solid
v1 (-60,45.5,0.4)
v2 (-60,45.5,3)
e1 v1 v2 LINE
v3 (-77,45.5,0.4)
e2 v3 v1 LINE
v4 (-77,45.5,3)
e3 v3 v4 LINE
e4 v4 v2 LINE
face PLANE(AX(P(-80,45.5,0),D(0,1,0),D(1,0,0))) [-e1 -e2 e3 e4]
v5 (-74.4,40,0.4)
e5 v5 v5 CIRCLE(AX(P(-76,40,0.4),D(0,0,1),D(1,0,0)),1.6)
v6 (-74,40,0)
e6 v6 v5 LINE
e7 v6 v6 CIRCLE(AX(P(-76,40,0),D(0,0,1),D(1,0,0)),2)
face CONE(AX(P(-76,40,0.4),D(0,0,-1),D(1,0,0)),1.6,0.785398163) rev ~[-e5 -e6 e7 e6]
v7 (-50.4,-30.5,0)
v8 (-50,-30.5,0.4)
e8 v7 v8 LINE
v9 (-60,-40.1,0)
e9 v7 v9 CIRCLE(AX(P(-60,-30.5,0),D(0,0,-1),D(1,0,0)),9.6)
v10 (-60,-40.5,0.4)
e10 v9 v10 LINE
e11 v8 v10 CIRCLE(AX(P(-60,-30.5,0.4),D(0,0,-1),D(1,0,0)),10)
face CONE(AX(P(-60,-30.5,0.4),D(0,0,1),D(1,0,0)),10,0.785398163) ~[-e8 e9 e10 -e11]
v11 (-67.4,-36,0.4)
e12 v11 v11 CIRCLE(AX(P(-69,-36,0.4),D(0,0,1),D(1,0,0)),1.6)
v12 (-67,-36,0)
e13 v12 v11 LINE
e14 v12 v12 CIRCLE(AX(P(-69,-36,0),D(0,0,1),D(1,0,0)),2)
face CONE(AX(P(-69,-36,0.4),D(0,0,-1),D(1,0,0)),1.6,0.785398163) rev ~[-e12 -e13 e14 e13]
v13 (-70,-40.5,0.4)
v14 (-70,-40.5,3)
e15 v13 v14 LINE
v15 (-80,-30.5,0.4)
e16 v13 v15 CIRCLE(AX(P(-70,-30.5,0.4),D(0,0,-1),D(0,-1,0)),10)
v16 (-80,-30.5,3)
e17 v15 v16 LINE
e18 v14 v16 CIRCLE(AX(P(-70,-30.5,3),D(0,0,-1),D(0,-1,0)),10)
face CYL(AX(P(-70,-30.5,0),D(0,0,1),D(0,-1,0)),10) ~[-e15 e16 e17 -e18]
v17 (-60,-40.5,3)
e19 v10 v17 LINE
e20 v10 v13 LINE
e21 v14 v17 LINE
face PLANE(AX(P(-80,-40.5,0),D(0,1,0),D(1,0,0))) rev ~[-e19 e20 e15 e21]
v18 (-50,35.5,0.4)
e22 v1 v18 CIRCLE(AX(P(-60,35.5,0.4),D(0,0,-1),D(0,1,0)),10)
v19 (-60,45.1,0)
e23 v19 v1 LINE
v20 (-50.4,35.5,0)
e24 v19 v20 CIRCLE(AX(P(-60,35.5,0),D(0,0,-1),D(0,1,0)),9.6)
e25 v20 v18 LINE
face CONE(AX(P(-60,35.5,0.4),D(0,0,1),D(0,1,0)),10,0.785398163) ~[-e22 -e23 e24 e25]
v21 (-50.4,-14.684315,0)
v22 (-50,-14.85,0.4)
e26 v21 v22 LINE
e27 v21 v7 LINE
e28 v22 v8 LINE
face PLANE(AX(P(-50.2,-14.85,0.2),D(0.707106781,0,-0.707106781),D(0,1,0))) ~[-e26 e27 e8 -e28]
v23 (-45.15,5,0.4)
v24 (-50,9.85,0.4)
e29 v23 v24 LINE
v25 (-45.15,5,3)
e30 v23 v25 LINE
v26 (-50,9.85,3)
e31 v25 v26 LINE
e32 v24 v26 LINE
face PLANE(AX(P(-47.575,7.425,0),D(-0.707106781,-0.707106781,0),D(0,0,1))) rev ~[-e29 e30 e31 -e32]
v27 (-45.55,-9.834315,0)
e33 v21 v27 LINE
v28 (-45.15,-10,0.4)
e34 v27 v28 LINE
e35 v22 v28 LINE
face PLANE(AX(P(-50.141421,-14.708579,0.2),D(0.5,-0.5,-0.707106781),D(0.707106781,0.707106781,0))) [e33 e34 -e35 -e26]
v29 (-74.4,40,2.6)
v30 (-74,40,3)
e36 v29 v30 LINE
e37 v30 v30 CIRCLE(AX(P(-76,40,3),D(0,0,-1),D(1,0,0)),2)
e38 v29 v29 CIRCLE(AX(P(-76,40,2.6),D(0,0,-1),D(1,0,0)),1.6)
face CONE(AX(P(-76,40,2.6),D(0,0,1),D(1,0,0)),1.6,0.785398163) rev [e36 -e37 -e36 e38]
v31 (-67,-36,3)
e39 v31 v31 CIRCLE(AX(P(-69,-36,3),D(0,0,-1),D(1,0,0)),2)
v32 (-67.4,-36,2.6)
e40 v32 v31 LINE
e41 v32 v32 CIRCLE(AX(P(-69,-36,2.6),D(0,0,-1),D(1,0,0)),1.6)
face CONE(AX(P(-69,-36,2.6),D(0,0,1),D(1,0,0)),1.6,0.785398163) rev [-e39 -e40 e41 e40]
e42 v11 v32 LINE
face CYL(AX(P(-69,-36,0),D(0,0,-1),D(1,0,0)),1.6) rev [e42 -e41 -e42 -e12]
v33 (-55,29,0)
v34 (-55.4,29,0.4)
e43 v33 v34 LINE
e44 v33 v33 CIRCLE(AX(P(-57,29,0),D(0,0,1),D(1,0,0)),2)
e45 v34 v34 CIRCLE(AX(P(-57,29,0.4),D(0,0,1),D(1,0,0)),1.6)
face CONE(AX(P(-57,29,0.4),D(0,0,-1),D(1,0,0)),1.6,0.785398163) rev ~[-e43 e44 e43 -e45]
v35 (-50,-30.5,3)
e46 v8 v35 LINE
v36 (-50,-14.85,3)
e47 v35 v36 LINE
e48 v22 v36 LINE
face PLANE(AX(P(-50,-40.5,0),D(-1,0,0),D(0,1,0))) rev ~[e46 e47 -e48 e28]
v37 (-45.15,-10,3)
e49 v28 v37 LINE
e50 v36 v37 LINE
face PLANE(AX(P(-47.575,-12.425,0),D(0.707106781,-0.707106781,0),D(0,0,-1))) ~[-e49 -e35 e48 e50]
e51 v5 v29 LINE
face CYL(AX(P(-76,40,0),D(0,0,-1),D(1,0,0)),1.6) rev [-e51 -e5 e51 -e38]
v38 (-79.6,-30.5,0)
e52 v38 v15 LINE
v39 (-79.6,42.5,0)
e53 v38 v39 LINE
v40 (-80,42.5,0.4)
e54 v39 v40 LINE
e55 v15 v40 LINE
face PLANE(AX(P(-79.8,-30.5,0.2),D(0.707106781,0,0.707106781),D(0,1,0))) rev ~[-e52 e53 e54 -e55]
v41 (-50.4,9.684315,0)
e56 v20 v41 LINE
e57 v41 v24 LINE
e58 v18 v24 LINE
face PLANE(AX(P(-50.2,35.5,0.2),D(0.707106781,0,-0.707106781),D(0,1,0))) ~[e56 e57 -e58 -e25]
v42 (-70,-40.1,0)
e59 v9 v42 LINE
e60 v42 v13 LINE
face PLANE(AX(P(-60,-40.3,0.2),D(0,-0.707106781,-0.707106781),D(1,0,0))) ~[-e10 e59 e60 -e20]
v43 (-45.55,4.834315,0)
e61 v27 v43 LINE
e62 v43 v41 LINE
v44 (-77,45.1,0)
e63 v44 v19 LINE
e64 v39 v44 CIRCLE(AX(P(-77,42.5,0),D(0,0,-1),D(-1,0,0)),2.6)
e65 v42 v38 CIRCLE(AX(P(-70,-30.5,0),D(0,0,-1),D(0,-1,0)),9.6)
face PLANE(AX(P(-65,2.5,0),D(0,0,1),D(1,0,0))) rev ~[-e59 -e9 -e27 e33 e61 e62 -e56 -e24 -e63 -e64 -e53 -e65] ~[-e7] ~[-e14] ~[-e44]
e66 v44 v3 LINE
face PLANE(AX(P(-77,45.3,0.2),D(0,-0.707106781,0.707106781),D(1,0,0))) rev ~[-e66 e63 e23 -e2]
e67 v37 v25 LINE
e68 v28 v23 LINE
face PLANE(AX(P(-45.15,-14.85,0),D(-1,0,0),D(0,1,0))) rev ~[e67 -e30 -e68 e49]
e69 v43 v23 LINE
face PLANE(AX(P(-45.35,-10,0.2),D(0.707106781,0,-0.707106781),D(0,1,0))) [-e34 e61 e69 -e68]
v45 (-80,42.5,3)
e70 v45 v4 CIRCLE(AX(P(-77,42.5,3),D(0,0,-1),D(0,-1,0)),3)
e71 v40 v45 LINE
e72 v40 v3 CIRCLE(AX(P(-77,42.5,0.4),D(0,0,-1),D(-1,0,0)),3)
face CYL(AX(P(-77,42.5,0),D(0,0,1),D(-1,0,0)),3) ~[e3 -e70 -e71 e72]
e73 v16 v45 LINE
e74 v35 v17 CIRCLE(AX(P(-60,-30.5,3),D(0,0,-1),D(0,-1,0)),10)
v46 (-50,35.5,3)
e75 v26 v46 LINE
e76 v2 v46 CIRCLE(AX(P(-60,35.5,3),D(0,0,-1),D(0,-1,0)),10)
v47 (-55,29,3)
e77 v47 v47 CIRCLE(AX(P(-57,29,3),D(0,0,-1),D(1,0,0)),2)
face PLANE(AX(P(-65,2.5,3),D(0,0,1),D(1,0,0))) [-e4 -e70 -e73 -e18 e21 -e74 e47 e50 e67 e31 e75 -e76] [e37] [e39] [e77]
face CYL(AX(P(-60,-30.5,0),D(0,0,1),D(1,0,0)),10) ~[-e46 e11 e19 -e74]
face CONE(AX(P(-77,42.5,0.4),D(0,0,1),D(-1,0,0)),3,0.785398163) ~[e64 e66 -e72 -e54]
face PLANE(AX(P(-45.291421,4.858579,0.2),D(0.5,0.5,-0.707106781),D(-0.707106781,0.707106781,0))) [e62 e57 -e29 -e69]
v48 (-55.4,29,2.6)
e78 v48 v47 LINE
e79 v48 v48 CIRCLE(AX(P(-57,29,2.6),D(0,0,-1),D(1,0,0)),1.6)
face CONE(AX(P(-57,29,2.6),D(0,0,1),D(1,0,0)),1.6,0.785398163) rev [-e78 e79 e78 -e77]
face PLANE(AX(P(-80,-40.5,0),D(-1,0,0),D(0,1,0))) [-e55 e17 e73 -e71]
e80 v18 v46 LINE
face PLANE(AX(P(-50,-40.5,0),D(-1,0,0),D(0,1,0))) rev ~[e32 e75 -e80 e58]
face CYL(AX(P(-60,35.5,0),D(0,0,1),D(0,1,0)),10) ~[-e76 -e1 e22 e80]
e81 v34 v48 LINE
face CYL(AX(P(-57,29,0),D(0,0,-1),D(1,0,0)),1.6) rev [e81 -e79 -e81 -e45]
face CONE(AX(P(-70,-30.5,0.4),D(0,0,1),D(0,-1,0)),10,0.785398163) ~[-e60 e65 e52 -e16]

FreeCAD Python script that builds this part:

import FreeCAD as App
import Part
import Sketcher
from FreeCAD import Vector


def edges_at(feature, points):
    """Names of the edges that pass closest to the given points."""
    edges = feature.Shape.Edges
    near = lambda p: min(range(len(edges)), key=lambda i: edges[i].distToShape(Part.Vertex(*p))[0])
    return sorted({f"Edge{near(p) + 1}" for p in points})

doc = App.newDocument("Part")
body = doc.addObject("PartDesign::Body", "Body")

# Sketch on XY plane
sketch1 = doc.addObject("Sketcher::SketchObject", "Sketch")
body.addObject(sketch1)
sketch1.AttachmentSupport = (doc.XY_Plane, [""])
sketch1.MapMode = "FlatFace"
sketch1.addGeometry([
    Part.LineSegment(Vector(-55, 10, 0), Vector(-55, -15, 0)),
    Part.LineSegment(Vector(-55, -15, 0), Vector(-45, -15, 0)),
    Part.LineSegment(Vector(-45, -15, 0), Vector(-45, 10, 0)),
    Part.LineSegment(Vector(-45, 10, 0), Vector(-55, 10, 0)),
], False)
sketch1.addConstraint([
    Sketcher.Constraint("Coincident", 0, 2, 1, 1),
    Sketcher.Constraint("Coincident", 1, 2, 2, 1),
    Sketcher.Constraint("Coincident", 2, 2, 3, 1),
    Sketcher.Constraint("Coincident", 3, 2, 0, 1),
    Sketcher.Constraint("Vertical", 0),
    Sketcher.Constraint("Horizontal", 1),
    Sketcher.Constraint("Vertical", 2),
    Sketcher.Constraint("Horizontal", 3),
    Sketcher.Constraint("DistanceX", 1, 1, 1, 2, 10.0),
    Sketcher.Constraint("DistanceY", 0, 2, 0, 1, 24.7),
    Sketcher.Constraint("DistanceX", 0, 2, -1, 1, 55.15),
    Sketcher.Constraint("DistanceY", 0, 2, -1, 1, 14.85),
])
pad1 = doc.addObject("PartDesign::Pad", "Pad")
body.addObject(pad1)
pad1.Profile = sketch1
pad1.Length = 3
doc.recompute()

chamfer = doc.addObject("PartDesign::Chamfer", "Chamfer")
body.addObject(chamfer)
chamfer.Base = (pad1, edges_at(pad1, [(-45.15, -14.85, 1.5), (-45.15, 9.85, 1.5)]))
chamfer.Size = 4.85
body2 = doc.addObject("PartDesign::Body", "Body001")

# Sketch on XY plane
sketch2 = doc.addObject("Sketcher::SketchObject", "Sketch001")
body2.addObject(sketch2)
sketch2.AttachmentSupport = (doc.getObject("XY_Plane001"), [""])
sketch2.MapMode = "FlatFace"
sketch2.addGeometry(Part.Circle(Vector(-76, 40, 0), Vector(0, 0, 1), 1.6), False)
sketch2.addConstraint([
    Sketcher.Constraint("Diameter", 0, 3.2),
    Sketcher.Constraint("DistanceX", 0, 3, -1, 1, 76.0),
    Sketcher.Constraint("DistanceY", -1, 1, 0, 3, 40.0),
])
pad2 = doc.addObject("PartDesign::Pad", "Pad001")
body2.addObject(pad2)
pad2.Profile = sketch2
pad2.Length = 10
body3 = doc.addObject("PartDesign::Body", "Body002")

# Sketch on XY plane
sketch3 = doc.addObject("Sketcher::SketchObject", "Sketch002")
body3.addObject(sketch3)
sketch3.AttachmentSupport = (doc.getObject("XY_Plane002"), [""])
sketch3.MapMode = "FlatFace"
sketch3.addGeometry(Part.Circle(Vector(-57, 29, 0), Vector(0, 0, 1), 1.6), False)
sketch3.addConstraint([
    Sketcher.Constraint("Diameter", 0, 3.2),
    Sketcher.Constraint("DistanceX", 0, 3, -1, 1, 57.0),
    Sketcher.Constraint("DistanceY", -1, 1, 0, 3, 29.0),
])
pad3 = doc.addObject("PartDesign::Pad", "Pad002")
body3.addObject(pad3)
pad3.Profile = sketch3
pad3.Length = 10
body4 = doc.addObject("PartDesign::Body", "Body003")
body4.AllowCompound = True

# Sketch on XY plane
sketch4 = doc.addObject("Sketcher::SketchObject", "Sketch003")
body4.addObject(sketch4)
sketch4.AttachmentSupport = (doc.getObject("XY_Plane003"), [""])
sketch4.MapMode = "FlatFace"
sketch4.addGeometry(Part.Circle(Vector(-69, -36, 0), Vector(0, 0, 1), 1.6), False)
sketch4.addConstraint([
    Sketcher.Constraint("Diameter", 0, 3.2),
    Sketcher.Constraint("DistanceX", 0, 3, -1, 1, 69.0),
    Sketcher.Constraint("DistanceY", 0, 3, -1, 1, 36.0),
])
pad4 = doc.addObject("PartDesign::Pad", "Pad003")
body4.addObject(pad4)
pad4.Profile = sketch4
pad4.Length = 10
doc.recompute()

boolean = doc.addObject("PartDesign::Boolean", "Boolean")
body4.addObject(boolean)
boolean.Type = "Fuse"
boolean.addObjects([body2])
doc.recompute()

boolean2 = doc.addObject("PartDesign::Boolean", "Boolean001")
body4.addObject(boolean2)
boolean2.Type = "Fuse"
boolean2.addObjects([body3])
body5 = doc.addObject("PartDesign::Body", "Body004")

# Sketch on XY plane
sketch5 = doc.addObject("Sketcher::SketchObject", "Sketch004")
body5.addObject(sketch5)
sketch5.AttachmentSupport = (doc.getObject("XY_Plane004"), [""])
sketch5.MapMode = "FlatFace"
sketch5.addGeometry([
    Part.LineSegment(Vector(-80, 46, 0), Vector(-80, -40, 0)),
    Part.LineSegment(Vector(-80, -40, 0), Vector(-50, -40, 0)),
    Part.LineSegment(Vector(-50, -40, 0), Vector(-50, 46, 0)),
    Part.LineSegment(Vector(-50, 46, 0), Vector(-80, 46, 0)),
], False)
sketch5.addConstraint([
    Sketcher.Constraint("Coincident", 0, 2, 1, 1),
    Sketcher.Constraint("Coincident", 1, 2, 2, 1),
    Sketcher.Constraint("Coincident", 2, 2, 3, 1),
    Sketcher.Constraint("Coincident", 3, 2, 0, 1),
    Sketcher.Constraint("Vertical", 0),
    Sketcher.Constraint("Horizontal", 1),
    Sketcher.Constraint("Vertical", 2),
    Sketcher.Constraint("Horizontal", 3),
    Sketcher.Constraint("DistanceX", 1, 1, 1, 2, 30.0),
    Sketcher.Constraint("DistanceY", 0, 2, 0, 1, 86.0),
    Sketcher.Constraint("DistanceX", 0, 2, -1, 1, 80.0),
    Sketcher.Constraint("DistanceY", 0, 2, -1, 1, 40.5),
])
pad5 = doc.addObject("PartDesign::Pad", "Pad004")
body5.addObject(pad5)
pad5.Profile = sketch5
pad5.Length = 3
doc.recompute()

boolean3 = doc.addObject("PartDesign::Boolean", "Boolean002")
body5.addObject(boolean3)
boolean3.Type = "Cut"
boolean3.addObjects([body4])
doc.recompute()

boolean4 = doc.addObject("PartDesign::Boolean", "Boolean003")
body5.addObject(boolean4)
boolean4.Type = "Fuse"
boolean4.addObjects([body])
doc.recompute()

fillet = doc.addObject("PartDesign::Fillet", "Fillet")
body5.addObject(fillet)
fillet.Base = (boolean4, edges_at(boolean4, [(-50, -40.5, 1.5), (-50, 45.5, 1.5)]))
fillet.Radius = 10
doc.recompute()

fillet2 = doc.addObject("PartDesign::Fillet", "Fillet001")
body5.addObject(fillet2)
fillet2.Base = (fillet, edges_at(fillet, [(-80, -40.5, 1.5)]))
fillet2.Radius = 10
doc.recompute()

fillet3 = doc.addObject("PartDesign::Fillet", "Fillet002")
body5.addObject(fillet3)
fillet3.Base = (fillet2, edges_at(fillet2, [(-80, 45.5, 1.5)]))
fillet3.Radius = 3
doc.recompute()

chamfer2 = doc.addObject("PartDesign::Chamfer", "Chamfer001")
body5.addObject(chamfer2)
chamfer2.Base = (fillet3, edges_at(fillet3, [
    (-80, 6, 0),
    (-79.121, 44.621, 0),
    (-68.5, 45.5, 0),
    (-52.929, 42.571, 0),
    (-50, 22.675, 0),
    (-47.575, 7.425, 0),
    (-45.15, -2.5, 0),
    (-47.575, -12.425, 0),
    (-50, -22.675, 0),
    (-52.929, -37.571, 0),
    (-65, -40.5, 0),
    (-77.071, -37.571, 0),
    (-58.6, 29, 0),
    (-70.6, -36, 0),
    (-77.6, 40, 0),
]))
chamfer2.Size = 0.4
doc.recompute()

chamfer3 = doc.addObject("PartDesign::Chamfer", "Chamfer002")
body5.addObject(chamfer3)
chamfer3.Base = (chamfer2, edges_at(chamfer2, [(-58.6, 29, 3), (-70.6, -36, 3), (-77.6, 40, 3)]))
chamfer3.Size = 0.4

doc.recompute()
